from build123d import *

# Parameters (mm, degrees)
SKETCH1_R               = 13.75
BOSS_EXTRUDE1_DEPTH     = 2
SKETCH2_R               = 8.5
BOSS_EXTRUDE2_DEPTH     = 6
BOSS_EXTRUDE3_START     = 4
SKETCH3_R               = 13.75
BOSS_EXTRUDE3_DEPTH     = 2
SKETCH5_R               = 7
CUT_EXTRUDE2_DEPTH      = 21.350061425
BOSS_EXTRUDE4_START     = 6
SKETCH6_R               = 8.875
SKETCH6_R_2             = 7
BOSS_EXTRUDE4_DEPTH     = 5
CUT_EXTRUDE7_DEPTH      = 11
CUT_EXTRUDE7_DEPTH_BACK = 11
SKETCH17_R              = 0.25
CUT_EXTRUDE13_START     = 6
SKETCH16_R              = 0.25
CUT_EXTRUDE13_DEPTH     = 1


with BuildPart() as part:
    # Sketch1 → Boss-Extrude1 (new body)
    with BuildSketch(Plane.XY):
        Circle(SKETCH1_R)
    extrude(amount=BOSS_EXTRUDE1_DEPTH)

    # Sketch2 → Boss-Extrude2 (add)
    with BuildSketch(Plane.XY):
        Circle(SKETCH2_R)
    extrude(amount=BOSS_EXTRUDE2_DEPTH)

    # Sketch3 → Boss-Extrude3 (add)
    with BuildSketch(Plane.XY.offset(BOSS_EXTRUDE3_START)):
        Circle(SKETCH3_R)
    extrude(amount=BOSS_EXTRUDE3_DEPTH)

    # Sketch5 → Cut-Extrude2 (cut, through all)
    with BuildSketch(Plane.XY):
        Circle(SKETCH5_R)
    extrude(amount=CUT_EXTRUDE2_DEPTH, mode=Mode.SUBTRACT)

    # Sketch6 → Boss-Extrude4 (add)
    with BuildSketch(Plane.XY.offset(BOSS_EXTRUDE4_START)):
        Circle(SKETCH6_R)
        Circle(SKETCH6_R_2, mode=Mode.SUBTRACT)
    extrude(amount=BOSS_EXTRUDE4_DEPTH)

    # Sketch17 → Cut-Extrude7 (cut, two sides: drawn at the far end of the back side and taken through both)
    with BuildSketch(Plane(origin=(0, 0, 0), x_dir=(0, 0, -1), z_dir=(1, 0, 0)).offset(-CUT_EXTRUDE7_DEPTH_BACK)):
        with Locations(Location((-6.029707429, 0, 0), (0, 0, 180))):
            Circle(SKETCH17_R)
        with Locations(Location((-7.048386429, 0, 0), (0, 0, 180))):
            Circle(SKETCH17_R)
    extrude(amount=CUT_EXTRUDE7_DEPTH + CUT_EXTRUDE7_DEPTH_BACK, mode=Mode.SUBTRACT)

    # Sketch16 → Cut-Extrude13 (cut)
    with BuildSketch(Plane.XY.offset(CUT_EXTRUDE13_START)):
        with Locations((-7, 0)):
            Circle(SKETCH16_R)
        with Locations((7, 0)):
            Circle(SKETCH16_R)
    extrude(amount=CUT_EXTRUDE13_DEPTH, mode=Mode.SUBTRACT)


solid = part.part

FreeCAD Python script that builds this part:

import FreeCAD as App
import Part
import Sketcher

V = App.Vector

doc = App.newDocument("Part")
body = doc.addObject("PartDesign::Body", "Body")

sketch1 = body.newObject("Sketcher::SketchObject", "Sketch")
sketch1.AttachmentSupport = (doc.getObject("XY_Plane"), [""])
sketch1.MapMode = "FlatFace"
sketch1.addGeometry(Part.Circle(V(0, 0, 0), V(0, 0, 1), 14), False)
sketch1.addConstraint([
    Sketcher.Constraint("Coincident", 0, 3, -1, 1),
    Sketcher.Constraint("Diameter", 0, 27.5),
])
pad1 = body.newObject("PartDesign::Pad", "Pad")
pad1.Profile = sketch1
pad1.Length = 2

sketch2 = body.newObject("Sketcher::SketchObject", "Sketch001")
sketch2.AttachmentSupport = (doc.getObject("XY_Plane"), [""])
sketch2.MapMode = "FlatFace"
sketch2.addGeometry(Part.Circle(V(0, 0, 0), V(0, 0, 1), 8), False)
sketch2.addConstraint([
    Sketcher.Constraint("Coincident", 0, 3, -1, 1),
    Sketcher.Constraint("Diameter", 0, 17.0),
])
pad2 = body.newObject("PartDesign::Pad", "Pad001")
pad2.Profile = sketch2
pad2.Length = 6

sketch3 = body.newObject("Sketcher::SketchObject", "Sketch002")
sketch3.AttachmentSupport = (doc.getObject("XY_Plane"), [""])
sketch3.MapMode = "FlatFace"
sketch3.AttachmentOffset = App.Placement(V(0, 0, 4), App.Rotation())
sketch3.addGeometry(Part.Circle(V(0, 0, 0), V(0, 0, 1), 14), False)
sketch3.addConstraint([
    Sketcher.Constraint("Coincident", 0, 3, -1, 1),
    Sketcher.Constraint("Diameter", 0, 27.5),
])
pad3 = body.newObject("PartDesign::Pad", "Pad002")
pad3.Profile = sketch3
pad3.Length = 2

sketch4 = body.newObject("Sketcher::SketchObject", "Sketch003")
sketch4.AttachmentSupport = (doc.getObject("XY_Plane"), [""])
sketch4.MapMode = "FlatFace"
sketch4.addGeometry(Part.Circle(V(0, 0, 0), V(0, 0, 1), 7), False)
sketch4.addConstraint([
    Sketcher.Constraint("Coincident", 0, 3, -1, 1),
    Sketcher.Constraint("Diameter", 0, 14.0),
])
pocket1 = body.newObject("PartDesign::Pocket", "Pocket")
pocket1.Profile = sketch4
pocket1.Type = "ThroughAll"
pocket1.Reversed = True

sketch5 = body.newObject("Sketcher::SketchObject", "Sketch004")
sketch5.AttachmentSupport = (doc.getObject("XY_Plane"), [""])
sketch5.MapMode = "FlatFace"
sketch5.AttachmentOffset = App.Placement(V(0, 0, 6), App.Rotation())
sketch5.addGeometry([
    Part.Circle(V(0, 0, 0), V(0, 0, 1), 9),
    Part.Circle(V(0, 0, 0), V(0, 0, 1), 7),
], False)
sketch5.addConstraint([
    Sketcher.Constraint("Coincident", 0, 3, -1, 1),
    Sketcher.Constraint("Coincident", 1, 3, -1, 1),
    Sketcher.Constraint("Diameter", 1, 14.0),
    Sketcher.Constraint("Diameter", 0, 17.75),
])
pad4 = body.newObject("PartDesign::Pad", "Pad003")
pad4.Profile = sketch5
pad4.Length = 5

sketch6 = body.newObject("Sketcher::SketchObject", "Sketch005")
sketch6.AttachmentSupport = (doc.getObject("YZ_Plane"), [""])
sketch6.MapMode = "FlatFace"
sketch6.addGeometry([
    Part.Circle(V(0, 6.03, 0), V(0, 0, 1), 0.25),
    Part.Circle(V(0, 7.05, 0), V(0, 0, 1), 0.25),
], False)
sketch6.addConstraint([
    Sketcher.Constraint("Equal", 0, 1),
    Sketcher.Constraint("PointOnObject", 0, 3, -2),
    Sketcher.Constraint("PointOnObject", 1, 3, -2),
    Sketcher.Constraint("Diameter", 0, 0.5),
    Sketcher.Constraint("DistanceY", 0, 3, 1, 3, 1.018679),
    Sketcher.Constraint("DistanceY", -1, 1, 0, 3, 6.029707),
])
pocket2 = body.newObject("PartDesign::Pocket", "Pocket001")
pocket2.Profile = sketch6
pocket2.Type = "TwoLengths"
pocket2.Length = 11
pocket2.Length2 = 11
pocket2.Reversed = True

sketch7 = body.newObject("Sketcher::SketchObject", "Sketch006")
sketch7.AttachmentSupport = (doc.getObject("XY_Plane"), [""])
sketch7.MapMode = "FlatFace"
sketch7.AttachmentOffset = App.Placement(V(0, 0, 6), App.Rotation())
sketch7.addGeometry([
    Part.Circle(V(-7, 0, 0), V(0, 0, 1), 0.25),
    Part.Circle(V(7, 0, 0), V(0, 0, 1), 0.25),
], False)
sketch7.addConstraint([
    Sketcher.Constraint("Equal", 0, 1),
    Sketcher.Constraint("Symmetric", 0, 3, 1, 3, -1, 1),
    Sketcher.Constraint("PointOnObject", 0, 3, -1),
    Sketcher.Constraint("Diameter", 0, 0.5),
    Sketcher.Constraint("DistanceX", 0, 3, -1, 1, 7.0),
])
pocket3 = body.newObject("PartDesign::Pocket", "Pocket002")
pocket3.Profile = sketch7
pocket3.Length = 1
pocket3.Reversed = True

doc.recompute()
